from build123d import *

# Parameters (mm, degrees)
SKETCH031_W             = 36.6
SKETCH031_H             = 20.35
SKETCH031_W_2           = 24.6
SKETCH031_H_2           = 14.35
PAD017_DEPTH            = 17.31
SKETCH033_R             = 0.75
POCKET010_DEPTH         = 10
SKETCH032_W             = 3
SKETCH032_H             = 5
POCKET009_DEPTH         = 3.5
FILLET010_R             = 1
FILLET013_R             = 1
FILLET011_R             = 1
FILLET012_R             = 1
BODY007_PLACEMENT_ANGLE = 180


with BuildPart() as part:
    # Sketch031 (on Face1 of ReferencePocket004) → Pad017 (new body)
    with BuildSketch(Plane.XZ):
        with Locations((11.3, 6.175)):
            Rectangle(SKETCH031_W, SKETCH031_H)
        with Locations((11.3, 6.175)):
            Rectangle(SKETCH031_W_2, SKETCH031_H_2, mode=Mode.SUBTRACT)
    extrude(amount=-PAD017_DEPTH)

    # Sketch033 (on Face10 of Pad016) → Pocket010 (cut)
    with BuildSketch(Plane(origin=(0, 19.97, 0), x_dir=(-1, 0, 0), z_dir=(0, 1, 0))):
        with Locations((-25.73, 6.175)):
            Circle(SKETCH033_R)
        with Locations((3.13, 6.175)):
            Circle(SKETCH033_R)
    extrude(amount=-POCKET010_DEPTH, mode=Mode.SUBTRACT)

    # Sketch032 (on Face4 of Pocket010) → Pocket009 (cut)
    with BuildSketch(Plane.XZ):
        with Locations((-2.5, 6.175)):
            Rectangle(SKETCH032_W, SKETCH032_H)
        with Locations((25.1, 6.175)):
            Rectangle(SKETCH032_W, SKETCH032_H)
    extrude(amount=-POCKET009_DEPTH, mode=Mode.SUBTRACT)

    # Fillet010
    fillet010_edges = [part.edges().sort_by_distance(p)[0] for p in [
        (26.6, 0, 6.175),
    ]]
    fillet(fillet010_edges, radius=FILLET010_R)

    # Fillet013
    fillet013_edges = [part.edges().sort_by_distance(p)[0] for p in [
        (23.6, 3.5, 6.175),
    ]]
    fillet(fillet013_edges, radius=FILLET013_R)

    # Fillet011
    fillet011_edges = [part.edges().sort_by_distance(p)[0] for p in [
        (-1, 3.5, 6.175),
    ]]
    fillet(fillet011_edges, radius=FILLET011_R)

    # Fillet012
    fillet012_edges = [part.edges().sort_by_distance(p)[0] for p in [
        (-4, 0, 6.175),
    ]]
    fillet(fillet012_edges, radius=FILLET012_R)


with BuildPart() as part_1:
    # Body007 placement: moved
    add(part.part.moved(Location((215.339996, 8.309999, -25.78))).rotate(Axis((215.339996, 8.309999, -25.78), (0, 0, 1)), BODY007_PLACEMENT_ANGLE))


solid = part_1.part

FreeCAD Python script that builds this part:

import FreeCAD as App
import Part
import Sketcher
from FreeCAD import Vector
Q = App.Units.Quantity


def edges_at(feature, points):
    """Names of the edges that pass closest to the given points."""
    edges = feature.Shape.Edges
    near = lambda p: min(range(len(edges)), key=lambda i: edges[i].distToShape(Part.Vertex(*p))[0])
    return sorted({f"Edge{near(p) + 1}" for p in points})

doc = App.newDocument("Part")
body = doc.addObject("PartDesign::Body", "Body")

# Sketch on XZ plane
sketch1 = body.newObject("Sketcher::SketchObject", "Sketch")
sketch1.AttachmentSupport = (doc.getObject("XZ_Plane"), [""])
sketch1.MapMode = "FlatFace"
sketch1.addGeometry(Part.LineSegment(Vector(-7, 16, 0), Vector(-7, -4, 0)), False)
sketch1.addGeometry(Part.LineSegment(Vector(-7, -4, 0), Vector(30, -4, 0)), False)
sketch1.addGeometry(Part.LineSegment(Vector(30, -4, 0), Vector(30, 16, 0)), False)
sketch1.addGeometry(Part.LineSegment(Vector(30, 16, 0), Vector(-7, 16, 0)), False)
sketch1.addGeometry(Part.LineSegment(Vector(24, -1, 0), Vector(-1, -1, 0)), False)
sketch1.addGeometry(Part.LineSegment(Vector(-1, -1, 0), Vector(-1, 13, 0)), False)
sketch1.addGeometry(Part.LineSegment(Vector(-1, 13, 0), Vector(24, 13, 0)), False)
sketch1.addGeometry(Part.LineSegment(Vector(24, 13, 0), Vector(24, -1, 0)), False)
sketch1.addConstraint(Sketcher.Constraint("Coincident", 0, 2, 1, 1))
sketch1.addConstraint(Sketcher.Constraint("Coincident", 1, 2, 2, 1))
sketch1.addConstraint(Sketcher.Constraint("Coincident", 2, 2, 3, 1))
sketch1.addConstraint(Sketcher.Constraint("Coincident", 3, 2, 0, 1))
sketch1.addConstraint(Sketcher.Constraint("Coincident", 4, 2, 5, 1))
sketch1.addConstraint(Sketcher.Constraint("Coincident", 5, 2, 6, 1))
sketch1.addConstraint(Sketcher.Constraint("Coincident", 6, 2, 7, 1))
sketch1.addConstraint(Sketcher.Constraint("Coincident", 7, 2, 4, 1))
sketch1.addConstraint(Sketcher.Constraint("Vertical", 0))
sketch1.addConstraint(Sketcher.Constraint("Horizontal", 1))
sketch1.addConstraint(Sketcher.Constraint("Vertical", 2))
sketch1.addConstraint(Sketcher.Constraint("Horizontal", 3))
sketch1.addConstraint(Sketcher.Constraint("Horizontal", 4))
sketch1.addConstraint(Sketcher.Constraint("Vertical", 5))
sketch1.addConstraint(Sketcher.Constraint("Horizontal", 6))
sketch1.addConstraint(Sketcher.Constraint("Vertical", 7))
sketch1.addConstraint(Sketcher.Constraint("DistanceX", 1, 1, 1, 2, Q("36.6 mm")))
sketch1.addConstraint(Sketcher.Constraint("DistanceX", 4, 2, 4, 1, Q("24.6 mm")))
sketch1.addConstraint(Sketcher.Constraint("DistanceX", 0, 2, -1, 1, Q("7 mm")))
sketch1.addConstraint(Sketcher.Constraint("DistanceY", 0, 2, -1, 1, Q("4 mm")))
sketch1.addConstraint(Sketcher.Constraint("DistanceX", 4, 2, -1, 1, Q("1 mm")))
sketch1.addConstraint(Sketcher.Constraint("DistanceY", 4, 2, -1, 1, Q("1 mm")))
sketch1.addConstraint(Sketcher.Constraint("DistanceY", 5, 2, 3, 2, Q("3 mm")))
sketch1.addConstraint(Sketcher.Constraint("DistanceY", 0, 2, 0, 1, Q("20.35 mm")))
pad1 = body.newObject("PartDesign::Pad", "Pad")
pad1.Profile = sketch1
pad1.Length = 17.31
pad1.Reversed = True

# Sketch on XZ plane
sketch2 = body.newObject("Sketcher::SketchObject", "Sketch001")
sketch2.AttachmentSupport = (doc.getObject("XZ_Plane"), [""])
sketch2.MapMode = "FlatFace"
sketch2.AttachmentOffset = App.Placement(Vector(0, 0, -19.97), App.Rotation())
sketch2.addGeometry(Part.Circle(Vector(25.7, 6.2, 0), Vector(0, 0, 1), 0.8), False)
sketch2.addGeometry(Part.Circle(Vector(-3.1, 6.2, 0), Vector(0, 0, 1), 0.8), False)
sketch2.addConstraint(Sketcher.Constraint("Equal", 0, 1))
sketch2.addConstraint(Sketcher.Constraint("Horizontal", 0, 3, 1, 3))
sketch2.addConstraint(Sketcher.Constraint("Diameter", 0, Q("1.5 mm")))
sketch2.addConstraint(Sketcher.Constraint("DistanceX", -1, 1, 0, 3, Q("25.73 mm")))
sketch2.addConstraint(Sketcher.Constraint("DistanceX", 1, 3, -1, 1, Q("3.13 mm")))
sketch2.addConstraint(Sketcher.Constraint("DistanceY", -1, 1, 0, 3, Q("6.175 mm")))
pocket1 = body.newObject("PartDesign::Pocket", "Pocket")
pocket1.Profile = sketch2
pocket1.Length = 10
pocket1.Reversed = True

# Sketch on XZ plane
sketch3 = body.newObject("Sketcher::SketchObject", "Sketch002")
sketch3.AttachmentSupport = (doc.getObject("XZ_Plane"), [""])
sketch3.MapMode = "FlatFace"
sketch3.addGeometry(Part.LineSegment(Vector(-4, 8.7, 0), Vector(-4, 3.7, 0)), False)
sketch3.addGeometry(Part.LineSegment(Vector(-4, 3.7, 0), Vector(-1, 3.7, 0)), False)
sketch3.addGeometry(Part.LineSegment(Vector(-1, 3.7, 0), Vector(-1, 8.7, 0)), False)
sketch3.addGeometry(Part.LineSegment(Vector(-1, 8.7, 0), Vector(-4, 8.7, 0)), False)
sketch3.addGeometry(Part.LineSegment(Vector(23.6, 8.7, 0), Vector(23.6, 3.7, 0)), False)
sketch3.addGeometry(Part.LineSegment(Vector(23.6, 3.7, 0), Vector(26.6, 3.7, 0)), False)
sketch3.addGeometry(Part.LineSegment(Vector(26.6, 3.7, 0), Vector(26.6, 8.7, 0)), False)
sketch3.addGeometry(Part.LineSegment(Vector(26.6, 8.7, 0), Vector(23.6, 8.7, 0)), False)
sketch3.addConstraint(Sketcher.Constraint("Coincident", 0, 2, 1, 1))
sketch3.addConstraint(Sketcher.Constraint("Coincident", 1, 2, 2, 1))
sketch3.addConstraint(Sketcher.Constraint("Coincident", 2, 2, 3, 1))
sketch3.addConstraint(Sketcher.Constraint("Coincident", 3, 2, 0, 1))
sketch3.addConstraint(Sketcher.Constraint("Coincident", 4, 2, 5, 1))
sketch3.addConstraint(Sketcher.Constraint("Coincident", 5, 2, 6, 1))
sketch3.addConstraint(Sketcher.Constraint("Coincident", 6, 2, 7, 1))
sketch3.addConstraint(Sketcher.Constraint("Coincident", 7, 2, 4, 1))
sketch3.addConstraint(Sketcher.Constraint("Vertical", 0))
sketch3.addConstraint(Sketcher.Constraint("Horizontal", 1))
sketch3.addConstraint(Sketcher.Constraint("Vertical", 2))
sketch3.addConstraint(Sketcher.Constraint("Horizontal", 3))
sketch3.addConstraint(Sketcher.Constraint("Vertical", 4))
sketch3.addConstraint(Sketcher.Constraint("Horizontal", 5))
sketch3.addConstraint(Sketcher.Constraint("Vertical", 6))
sketch3.addConstraint(Sketcher.Constraint("Horizontal", 7))
sketch3.addConstraint(Sketcher.Constraint("Horizontal", 1, 2, 4, 2))
sketch3.addConstraint(Sketcher.Constraint("Horizontal", 3, 2, 6, 2))
sketch3.addConstraint(Sketcher.Constraint("Equal", 3, 5))
sketch3.addConstraint(Sketcher.Constraint("DistanceX", 1, 1, 1, 2, Q("3 mm")))
sketch3.addConstraint(Sketcher.Constraint("DistanceY", 0, 2, 0, 1, Q("5 mm")))
sketch3.addConstraint(Sketcher.Constraint("DistanceX", 0, 2, -1, 1, Q("4 mm")))
sketch3.addConstraint(Sketcher.Constraint("DistanceX", -1, 1, 4, 2, Q("23.6 mm")))
sketch3.addConstraint(Sketcher.Constraint("DistanceY", -1, 1, 0, 2, Q("3.675 mm")))
pocket2 = body.newObject("PartDesign::Pocket", "Pocket001")
pocket2.Profile = sketch3
pocket2.Length = 3.5
doc.recompute()

fillet = body.newObject("PartDesign::Fillet", "Fillet")
fillet.Base = (pocket2, edges_at(pocket2, [(26.6, 0, 6.175)]))
fillet.Radius = 1
doc.recompute()

fillet2 = body.newObject("PartDesign::Fillet", "Fillet001")
fillet2.Base = (fillet, edges_at(fillet, [(23.6, 3.5, 6.175)]))
fillet2.Radius = 1
doc.recompute()

fillet3 = body.newObject("PartDesign::Fillet", "Fillet002")
fillet3.Base = (fillet2, edges_at(fillet2, [(-1, 3.5, 6.175)]))
fillet3.Radius = 1
doc.recompute()

fillet4 = body.newObject("PartDesign::Fillet", "Fillet003")
fillet4.Base = (fillet3, edges_at(fillet3, [(-4, 0, 6.175)]))
fillet4.Radius = 1
body2 = doc.addObject("PartDesign::Body", "Body001")
doc.recompute()

body.Placement = App.Placement(Vector(215.339996, 8.309999, -25.78), App.Rotation(Vector(0, 0, 1), 180))
boolean = body2.newObject("PartDesign::Boolean", "Boolean")
boolean.Type = "Fuse"
boolean.addObjects([body])

doc.recompute()
